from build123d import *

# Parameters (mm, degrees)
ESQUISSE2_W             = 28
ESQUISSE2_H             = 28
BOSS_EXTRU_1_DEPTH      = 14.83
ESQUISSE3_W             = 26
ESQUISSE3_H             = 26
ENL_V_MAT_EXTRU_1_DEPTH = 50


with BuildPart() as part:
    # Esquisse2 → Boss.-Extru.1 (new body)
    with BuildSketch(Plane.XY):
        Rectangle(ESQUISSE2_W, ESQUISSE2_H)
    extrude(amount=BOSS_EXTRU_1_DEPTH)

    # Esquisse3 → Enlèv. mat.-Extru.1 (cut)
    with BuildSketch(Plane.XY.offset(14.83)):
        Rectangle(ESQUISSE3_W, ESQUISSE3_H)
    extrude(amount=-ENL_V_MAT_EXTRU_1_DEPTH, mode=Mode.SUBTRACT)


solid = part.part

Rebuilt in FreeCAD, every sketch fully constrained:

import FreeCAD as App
import Part
import Sketcher
Q = App.Units.Quantity

doc = App.newDocument("Part")
params = doc.addObject("Spreadsheet::Sheet", "Params")
for row, (alias, value) in enumerate([
    ("sketch1_width", "28 mm"),
    ("pad1_length", "14.83 mm"),
    ("sketch2_width", "26 mm"),
    ("pocket1_length", "50 mm"),
], start=1):
    params.set(f"A{row}", alias)
    params.set(f"B{row}", "=" + value)
    params.setAlias(f"B{row}", alias)

body = doc.addObject("PartDesign::Body", "Body")

# Sketch on XY plane
sketch1 = body.newObject("Sketcher::SketchObject", "Sketch")
sketch1.AttachmentSupport = (doc.getObject("XY_Plane"), [""])
sketch1.MapMode = "FlatFace"
sketch1.addGeometry(Part.LineSegment(App.Vector(-14, 14, 0), App.Vector(-14, -14, 0)), False)
sketch1.addGeometry(Part.LineSegment(App.Vector(-14, -14, 0), App.Vector(14, -14, 0)), False)
sketch1.addGeometry(Part.LineSegment(App.Vector(14, -14, 0), App.Vector(14, 14, 0)), False)
sketch1.addGeometry(Part.LineSegment(App.Vector(14, 14, 0), App.Vector(-14, 14, 0)), False)
sketch1.addConstraint(Sketcher.Constraint("Coincident", 0, 2, 1, 1))
sketch1.addConstraint(Sketcher.Constraint("Coincident", 1, 2, 2, 1))
sketch1.addConstraint(Sketcher.Constraint("Coincident", 2, 2, 3, 1))
sketch1.addConstraint(Sketcher.Constraint("Coincident", 3, 2, 0, 1))
sketch1.addConstraint(Sketcher.Constraint("Vertical", 0))
sketch1.addConstraint(Sketcher.Constraint("Horizontal", 1))
sketch1.addConstraint(Sketcher.Constraint("Vertical", 2))
sketch1.addConstraint(Sketcher.Constraint("Horizontal", 3))
sketch1.addConstraint(Sketcher.Constraint("Symmetric", 0, 2, 2, 2, -1, 1))
sketch1.addConstraint(Sketcher.Constraint("Equal", 3, 0))
sketch1.addConstraint(Sketcher.Constraint("DistanceX", 1, 1, 1, 2, Q("28 mm")))
sketch1.setExpression("Constraints[10]", "Params.sketch1_width")
pad1 = body.newObject("PartDesign::Pad", "Pad")
pad1.Profile = sketch1
pad1.setExpression("Length", "Params.pad1_length")

# Sketch on XY plane
sketch2 = body.newObject("Sketcher::SketchObject", "Sketch001")
sketch2.AttachmentSupport = (doc.getObject("XY_Plane"), [""])
sketch2.MapMode = "FlatFace"
sketch2.AttachmentOffset = App.Placement(App.Vector(0, 0, 14.83), App.Rotation())
sketch2.addGeometry(Part.LineSegment(App.Vector(-13, 13, 0), App.Vector(-13, -13, 0)), False)
sketch2.addGeometry(Part.LineSegment(App.Vector(-13, -13, 0), App.Vector(13, -13, 0)), False)
sketch2.addGeometry(Part.LineSegment(App.Vector(13, -13, 0), App.Vector(13, 13, 0)), False)
sketch2.addGeometry(Part.LineSegment(App.Vector(13, 13, 0), App.Vector(-13, 13, 0)), False)
sketch2.addConstraint(Sketcher.Constraint("Coincident", 0, 2, 1, 1))
sketch2.addConstraint(Sketcher.Constraint("Coincident", 1, 2, 2, 1))
sketch2.addConstraint(Sketcher.Constraint("Coincident", 2, 2, 3, 1))
sketch2.addConstraint(Sketcher.Constraint("Coincident", 3, 2, 0, 1))
sketch2.addConstraint(Sketcher.Constraint("Vertical", 0))
sketch2.addConstraint(Sketcher.Constraint("Horizontal", 1))
sketch2.addConstraint(Sketcher.Constraint("Vertical", 2))
sketch2.addConstraint(Sketcher.Constraint("Horizontal", 3))
sketch2.addConstraint(Sketcher.Constraint("Symmetric", 0, 2, 2, 2, -1, 1))
sketch2.addConstraint(Sketcher.Constraint("Equal", 3, 0))
sketch2.addConstraint(Sketcher.Constraint("DistanceX", 1, 1, 1, 2, Q("26 mm")))
sketch2.setExpression("Constraints[10]", "Params.sketch2_width")
pocket1 = body.newObject("PartDesign::Pocket", "Pocket")
pocket1.Profile = sketch2
pocket1.setExpression("Length", "Params.pocket1_length")

doc.recompute()
